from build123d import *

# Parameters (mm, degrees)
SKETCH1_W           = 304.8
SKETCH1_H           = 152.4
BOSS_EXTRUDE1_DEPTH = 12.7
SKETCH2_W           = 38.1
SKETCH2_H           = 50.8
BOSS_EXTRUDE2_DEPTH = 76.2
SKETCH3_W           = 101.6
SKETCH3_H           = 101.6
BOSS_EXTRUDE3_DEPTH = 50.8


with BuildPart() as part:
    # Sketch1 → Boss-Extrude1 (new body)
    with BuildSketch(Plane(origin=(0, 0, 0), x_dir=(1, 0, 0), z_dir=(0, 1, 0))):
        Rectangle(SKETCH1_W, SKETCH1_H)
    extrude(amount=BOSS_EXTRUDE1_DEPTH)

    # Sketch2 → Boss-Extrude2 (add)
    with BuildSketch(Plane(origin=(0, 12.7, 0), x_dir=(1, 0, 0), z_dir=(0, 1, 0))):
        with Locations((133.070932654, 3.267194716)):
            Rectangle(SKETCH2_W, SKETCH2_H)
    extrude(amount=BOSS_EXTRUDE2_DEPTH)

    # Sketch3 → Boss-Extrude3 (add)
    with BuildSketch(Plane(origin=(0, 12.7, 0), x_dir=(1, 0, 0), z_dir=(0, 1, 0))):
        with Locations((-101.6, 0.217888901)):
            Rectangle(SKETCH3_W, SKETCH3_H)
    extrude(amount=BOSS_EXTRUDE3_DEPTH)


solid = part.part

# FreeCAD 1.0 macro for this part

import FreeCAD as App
import Part
import Sketcher

V = App.Vector
Q = App.Units.Quantity


def add_polygon(sketch, points):
    """Adds a closed chain of lines whose ends are joined by coincident constraints."""
    first, n = sketch.GeometryCount, len(points)
    for a, b in zip(points, points[1:] + points[:1]):
        sketch.addGeometry(Part.LineSegment(App.Vector(*a, 0), App.Vector(*b, 0)), False)
    for i in range(n):
        sketch.addConstraint(Sketcher.Constraint("Coincident", first + i, 2, first + (i + 1) % n, 1))

doc = App.newDocument("Part")
body = doc.addObject("PartDesign::Body", "Body")

# Sketch on XZ plane
sketch1 = body.newObject("Sketcher::SketchObject", "Sketch")
sketch1.AttachmentSupport = (doc.getObject("XZ_Plane"), [""])
sketch1.MapMode = "FlatFace"
add_polygon(sketch1, [(-152.4, -76.2), (-152.4, 76.2), (152.4, 76.2), (152.4, -76.2)])  # lines 0-3
sketch1.addConstraint([
    Sketcher.Constraint("Vertical", 0),
    Sketcher.Constraint("Horizontal", 1),
    Sketcher.Constraint("Vertical", 2),
    Sketcher.Constraint("Horizontal", 3),
    Sketcher.Constraint("Symmetric", 0, 2, 2, 2, -1, 1),
    Sketcher.Constraint("DistanceX", 1, 1, 1, 2, Q("12 in")),
    Sketcher.Constraint("DistanceY", 0, 1, 0, 2, Q("6 in")),
])
pad1 = body.newObject("PartDesign::Pad", "Pad")
pad1.Profile = sketch1
pad1.Length = Q("0.5 in")
pad1.Reversed = True

# Sketch on XZ plane
sketch2 = body.newObject("Sketcher::SketchObject", "Sketch001")
sketch2.AttachmentSupport = (doc.getObject("XZ_Plane"), [""])
sketch2.MapMode = "FlatFace"
sketch2.AttachmentOffset = App.Placement(V(0, 0, -0.5 * 25.4), App.Rotation())
add_polygon(sketch2, [(114.020933, -28.667195), (114.020933, 22.132805), (152.120933, 22.132805), (152.120933, -28.667195)])  # lines 0-3
sketch2.addConstraint([
    Sketcher.Constraint("Vertical", 0),
    Sketcher.Constraint("Horizontal", 1),
    Sketcher.Constraint("Vertical", 2),
    Sketcher.Constraint("Horizontal", 3),
    Sketcher.Constraint("DistanceY", 0, 1, 0, 2, Q("2 in")),
    Sketcher.Constraint("DistanceX", 1, 1, 1, 2, Q("1.5 in")),
    Sketcher.Constraint("DistanceX", -1, 1, 0, 2, 114.020933),
    Sketcher.Constraint("DistanceY", -1, 1, 0, 2, 22.132805),
])
pad2 = body.newObject("PartDesign::Pad", "Pad001")
pad2.Profile = sketch2
pad2.Length = Q("3 in")
pad2.Reversed = True

# Sketch on XZ plane
sketch3 = body.newObject("Sketcher::SketchObject", "Sketch002")
sketch3.AttachmentSupport = (doc.getObject("XZ_Plane"), [""])
sketch3.MapMode = "FlatFace"
sketch3.AttachmentOffset = App.Placement(V(0, 0, -0.5 * 25.4), App.Rotation())
add_polygon(sketch3, [(-152.4, -51.017889), (-152.4, 50.582111), (-50.8, 50.582111), (-50.8, -51.017889)])  # lines 0-3
sketch3.addConstraint([
    Sketcher.Constraint("Vertical", 0),
    Sketcher.Constraint("Horizontal", 1),
    Sketcher.Constraint("Vertical", 2),
    Sketcher.Constraint("Horizontal", 3),
    Sketcher.Constraint("Equal", 3, 0),
    Sketcher.Constraint("DistanceX", 1, 1, 1, 2, Q("4 in")),
    Sketcher.Constraint("DistanceX", 0, 2, -1, 1, Q("6 in")),
    Sketcher.Constraint("DistanceY", -1, 1, 0, 2, 50.582111),
])
pad3 = body.newObject("PartDesign::Pad", "Pad002")
pad3.Profile = sketch3
pad3.Length = Q("2 in")
pad3.Reversed = True

doc.recompute()
